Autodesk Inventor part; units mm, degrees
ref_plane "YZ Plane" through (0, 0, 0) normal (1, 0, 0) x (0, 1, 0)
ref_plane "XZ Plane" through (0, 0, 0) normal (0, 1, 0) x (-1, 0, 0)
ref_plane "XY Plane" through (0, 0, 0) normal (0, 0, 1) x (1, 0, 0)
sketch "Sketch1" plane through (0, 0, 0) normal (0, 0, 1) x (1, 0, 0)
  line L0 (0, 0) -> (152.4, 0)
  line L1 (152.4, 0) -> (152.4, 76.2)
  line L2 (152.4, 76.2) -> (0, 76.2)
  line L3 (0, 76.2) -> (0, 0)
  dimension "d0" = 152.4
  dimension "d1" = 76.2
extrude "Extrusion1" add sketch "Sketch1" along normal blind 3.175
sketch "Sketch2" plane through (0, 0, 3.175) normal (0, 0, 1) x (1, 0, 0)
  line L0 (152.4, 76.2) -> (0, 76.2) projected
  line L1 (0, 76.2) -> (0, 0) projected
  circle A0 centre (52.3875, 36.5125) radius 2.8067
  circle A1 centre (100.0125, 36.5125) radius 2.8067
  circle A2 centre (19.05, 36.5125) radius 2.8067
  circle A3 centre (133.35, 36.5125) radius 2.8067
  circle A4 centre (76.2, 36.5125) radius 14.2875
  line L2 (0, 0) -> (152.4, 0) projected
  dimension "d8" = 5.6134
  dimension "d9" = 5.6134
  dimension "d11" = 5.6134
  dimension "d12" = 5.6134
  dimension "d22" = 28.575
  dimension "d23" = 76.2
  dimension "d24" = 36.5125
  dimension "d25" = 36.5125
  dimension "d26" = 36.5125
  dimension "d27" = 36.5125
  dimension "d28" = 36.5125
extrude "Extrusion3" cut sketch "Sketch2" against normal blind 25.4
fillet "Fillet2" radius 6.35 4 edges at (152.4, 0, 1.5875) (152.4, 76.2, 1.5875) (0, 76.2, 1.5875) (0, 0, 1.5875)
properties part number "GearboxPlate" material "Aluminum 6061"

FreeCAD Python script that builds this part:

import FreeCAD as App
import Part
import Sketcher
from FreeCAD import Vector
Q = App.Units.Quantity


def edges_at(feature, points):
    """Names of the edges that pass closest to the given points."""
    edges = feature.Shape.Edges
    near = lambda p: min(range(len(edges)), key=lambda i: edges[i].distToShape(Part.Vertex(*p))[0])
    return sorted({f"Edge{near(p) + 1}" for p in points})

doc = App.newDocument("Part")
body = doc.addObject("PartDesign::Body", "Body")

sketch1 = doc.addObject("Sketcher::SketchObject", "Sketch")
body.addObject(sketch1)
sketch1.AttachmentSupport = (doc.XY_Plane, [""])
sketch1.MapMode = "FlatFace"
sketch1.addGeometry(Part.LineSegment(Vector(0, 76, 0), Vector(0, 0, 0)), False)
sketch1.addGeometry(Part.LineSegment(Vector(0, 0, 0), Vector(152, 0, 0)), False)
sketch1.addGeometry(Part.LineSegment(Vector(152, 0, 0), Vector(152, 76, 0)), False)
sketch1.addGeometry(Part.LineSegment(Vector(152, 76, 0), Vector(0, 76, 0)), False)
sketch1.addConstraint(Sketcher.Constraint("Coincident", 0, 2, 1, 1))
sketch1.addConstraint(Sketcher.Constraint("Coincident", 1, 2, 2, 1))
sketch1.addConstraint(Sketcher.Constraint("Coincident", 2, 2, 3, 1))
sketch1.addConstraint(Sketcher.Constraint("Coincident", 3, 2, 0, 1))
sketch1.addConstraint(Sketcher.Constraint("Vertical", 0))
sketch1.addConstraint(Sketcher.Constraint("Horizontal", 1))
sketch1.addConstraint(Sketcher.Constraint("Vertical", 2))
sketch1.addConstraint(Sketcher.Constraint("Horizontal", 3))
sketch1.addConstraint(Sketcher.Constraint("Coincident", 0, 2, -1, 1))
sketch1.addConstraint(Sketcher.Constraint("DistanceX", 1, 1, 1, 2, Q("6 in")))
sketch1.addConstraint(Sketcher.Constraint("DistanceY", 0, 2, 0, 1, Q("3 in")))
pad1 = doc.addObject("PartDesign::Pad", "Pad")
body.addObject(pad1)
pad1.Profile = sketch1
pad1.Length = Q("0.125 in")

sketch2 = doc.addObject("Sketcher::SketchObject", "Sketch001")
body.addObject(sketch2)
sketch2.AttachmentSupport = (doc.XY_Plane, [""])
sketch2.MapMode = "FlatFace"
sketch2.AttachmentOffset = App.Placement(Vector(0, 0, 0.125 * 25.4), App.Rotation())
sketch2.addGeometry(Part.Circle(Vector(52.4, 36.5, 0), Vector(0, 0, 1), 2.8), False)
sketch2.addGeometry(Part.Circle(Vector(100, 36.5, 0), Vector(0, 0, 1), 2.8), False)
sketch2.addGeometry(Part.Circle(Vector(19.1, 36.5, 0), Vector(0, 0, 1), 2.8), False)
sketch2.addGeometry(Part.Circle(Vector(133.3, 36.5, 0), Vector(0, 0, 1), 2.8), False)
sketch2.addGeometry(Part.Circle(Vector(76.2, 36.5, 0), Vector(0, 0, 1), 14.3), False)
sketch2.addConstraint(Sketcher.Constraint("Equal", 0, 1))
sketch2.addConstraint(Sketcher.Constraint("Equal", 1, 2))
sketch2.addConstraint(Sketcher.Constraint("Equal", 2, 3))
sketch2.addConstraint(Sketcher.Constraint("Horizontal", 0, 3, 1, 3))
sketch2.addConstraint(Sketcher.Constraint("Horizontal", 1, 3, 2, 3))
sketch2.addConstraint(Sketcher.Constraint("Horizontal", 2, 3, 3, 3))
sketch2.addConstraint(Sketcher.Constraint("Horizontal", 3, 3, 4, 3))
sketch2.addConstraint(Sketcher.Constraint("Diameter", 0, Q("0.221 in")))
sketch2.addConstraint(Sketcher.Constraint("Diameter", 4, Q("1.125 in")))
sketch2.addConstraint(Sketcher.Constraint("DistanceX", -1, 1, 4, 3, Q("3 in")))
sketch2.addConstraint(Sketcher.Constraint("DistanceY", -1, 1, 0, 3, Q("1.4375 in")))
sketch2.addConstraint(Sketcher.Constraint("DistanceX", 2, 3, 3, 3, Q("4.5 in")))
sketch2.addConstraint(Sketcher.Constraint("DistanceX", -1, 1, 2, 3, Q("0.75 in")))
sketch2.addConstraint(Sketcher.Constraint("DistanceX", -1, 1, 0, 3, Q("2.0625 in")))
sketch2.addConstraint(Sketcher.Constraint("DistanceX", -1, 1, 1, 3, Q("3.9375 in")))
pocket1 = doc.addObject("PartDesign::Pocket", "Pocket")
body.addObject(pocket1)
pocket1.Profile = sketch2
pocket1.Length = Q("1 in")
doc.recompute()

fillet = doc.addObject("PartDesign::Fillet", "Fillet")
body.addObject(fillet)
fillet.Base = (pocket1, edges_at(pocket1, [
    (152.4, 0, 1.587),
    (152.4, 76.2, 1.587),
    (0, 76.2, 1.587),
    (0, 0, 1.587),
]))
fillet.Radius = Q("0.25 in")

doc.recompute()
